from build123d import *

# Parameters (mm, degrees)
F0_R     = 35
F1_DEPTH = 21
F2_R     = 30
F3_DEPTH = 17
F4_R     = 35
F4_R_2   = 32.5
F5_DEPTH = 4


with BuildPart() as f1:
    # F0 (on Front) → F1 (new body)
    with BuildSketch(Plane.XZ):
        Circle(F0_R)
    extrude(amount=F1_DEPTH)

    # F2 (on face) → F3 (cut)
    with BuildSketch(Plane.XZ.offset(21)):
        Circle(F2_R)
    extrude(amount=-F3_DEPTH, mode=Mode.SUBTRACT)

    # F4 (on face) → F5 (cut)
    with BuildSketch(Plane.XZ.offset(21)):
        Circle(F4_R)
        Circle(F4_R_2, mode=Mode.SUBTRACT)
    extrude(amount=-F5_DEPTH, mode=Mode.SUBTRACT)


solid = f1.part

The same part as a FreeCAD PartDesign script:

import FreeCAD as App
import Part
import Sketcher
from FreeCAD import Vector
Q = App.Units.Quantity

doc = App.newDocument("Part")
body = doc.addObject("PartDesign::Body", "Body")

# Sketch on XZ plane
sketch1 = body.newObject("Sketcher::SketchObject", "Sketch")
sketch1.AttachmentSupport = (doc.getObject("XZ_Plane"), [""])
sketch1.MapMode = "FlatFace"
sketch1.addGeometry(Part.Circle(Vector(0, 0, 0), Vector(0, 0, 1), 35), False)
sketch1.addConstraint([
    Sketcher.Constraint("Coincident", 0, 3, -1, 1),
    Sketcher.Constraint("Diameter", 0, Q("70 mm")),
])
pad1 = body.newObject("PartDesign::Pad", "Pad")
pad1.Profile = sketch1
pad1.Length = 21

# Sketch on XZ plane
sketch2 = body.newObject("Sketcher::SketchObject", "Sketch001")
sketch2.AttachmentSupport = (doc.getObject("XZ_Plane"), [""])
sketch2.MapMode = "FlatFace"
sketch2.AttachmentOffset = App.Placement(Vector(0, 0, 21), App.Rotation())
sketch2.addGeometry(Part.Circle(Vector(0, 0, 0), Vector(0, 0, 1), 30), False)
sketch2.addConstraint([
    Sketcher.Constraint("Coincident", 0, 3, -1, 1),
    Sketcher.Constraint("Diameter", 0, Q("60 mm")),
])
pocket1 = body.newObject("PartDesign::Pocket", "Pocket")
pocket1.Profile = sketch2
pocket1.Length = 17

# Sketch on XZ plane
sketch3 = body.newObject("Sketcher::SketchObject", "Sketch002")
sketch3.AttachmentSupport = (doc.getObject("XZ_Plane"), [""])
sketch3.MapMode = "FlatFace"
sketch3.AttachmentOffset = App.Placement(Vector(0, 0, 21), App.Rotation())
sketch3.addGeometry([
    Part.Circle(Vector(0, 0, 0), Vector(0, 0, 1), 35),
    Part.Circle(Vector(0, 0, 0), Vector(0, 0, 1), 32),
], False)
sketch3.addConstraint([
    Sketcher.Constraint("Coincident", 0, 3, -1, 1),
    Sketcher.Constraint("Coincident", 1, 3, -1, 1),
    Sketcher.Constraint("Diameter", 0, Q("70 mm")),
    Sketcher.Constraint("Diameter", 1, Q("65 mm")),
])
pocket2 = body.newObject("PartDesign::Pocket", "Pocket001")
pocket2.Profile = sketch3
pocket2.Length = 4

doc.recompute()
